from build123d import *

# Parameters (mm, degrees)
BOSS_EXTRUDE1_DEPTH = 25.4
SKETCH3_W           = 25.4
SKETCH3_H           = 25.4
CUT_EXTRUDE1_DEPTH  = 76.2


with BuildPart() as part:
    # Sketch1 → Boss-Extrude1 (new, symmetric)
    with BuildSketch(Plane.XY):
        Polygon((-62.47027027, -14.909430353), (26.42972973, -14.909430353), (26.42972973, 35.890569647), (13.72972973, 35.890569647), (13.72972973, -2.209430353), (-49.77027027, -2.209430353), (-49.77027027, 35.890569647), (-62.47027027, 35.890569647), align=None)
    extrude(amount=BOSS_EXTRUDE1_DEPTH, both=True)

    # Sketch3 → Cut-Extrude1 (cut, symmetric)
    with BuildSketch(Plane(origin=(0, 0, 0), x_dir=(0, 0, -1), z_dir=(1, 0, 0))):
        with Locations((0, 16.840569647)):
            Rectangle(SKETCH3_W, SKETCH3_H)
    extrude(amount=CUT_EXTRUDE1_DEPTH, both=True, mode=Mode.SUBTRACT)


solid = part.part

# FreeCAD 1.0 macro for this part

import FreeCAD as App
import Part
import Sketcher

V = App.Vector
Q = App.Units.Quantity

doc = App.newDocument("Part")
body = doc.addObject("PartDesign::Body", "Body")

# Sketch on XY plane
sketch1 = body.newObject("Sketcher::SketchObject", "Sketch")
sketch1.AttachmentSupport = (doc.getObject("XY_Plane"), [""])
sketch1.MapMode = "FlatFace"
sketch1.addGeometry([
    Part.LineSegment(V(-62, -15, 0), V(26, -15, 0)),  # 0
    Part.LineSegment(V(26, -15, 0), V(26, 36, 0)),  # 1
    Part.LineSegment(V(26, 36, 0), V(14, 36, 0)),  # 2
    Part.LineSegment(V(14, 36, 0), V(14, -2, 0)),  # 3
    Part.LineSegment(V(14, -2, 0), V(-50, -2, 0)),  # 4
    Part.LineSegment(V(-50, -2, 0), V(-50, 36, 0)),  # 5
    Part.LineSegment(V(-50, 36, 0), V(-62, 36, 0)),  # 6
    Part.LineSegment(V(-62, 36, 0), V(-62, -15, 0)),  # 7
], False)
sketch1.addConstraint([
    Sketcher.Constraint("Coincident", 0, 2, 1, 1),
    Sketcher.Constraint("Coincident", 1, 2, 2, 1),
    Sketcher.Constraint("Coincident", 2, 2, 3, 1),
    Sketcher.Constraint("Coincident", 3, 2, 4, 1),
    Sketcher.Constraint("Coincident", 4, 2, 5, 1),
    Sketcher.Constraint("Coincident", 5, 2, 6, 1),
    Sketcher.Constraint("Coincident", 6, 2, 7, 1),
    Sketcher.Constraint("Coincident", 7, 2, 0, 1),
    Sketcher.Constraint("Horizontal", 0),
    Sketcher.Constraint("Vertical", 1),
    Sketcher.Constraint("Horizontal", 2),
    Sketcher.Constraint("Vertical", 3),
    Sketcher.Constraint("Horizontal", 4),
    Sketcher.Constraint("Vertical", 5),
    Sketcher.Constraint("Horizontal", 6),
    Sketcher.Constraint("Vertical", 7),
    Sketcher.Constraint("Horizontal", 2, 2, 5, 2),
    Sketcher.Constraint("Equal", 2, 6),
    Sketcher.Constraint("DistanceY", 1, 1, 1, 2, Q("2 in")),
    Sketcher.Constraint("DistanceX", 0, 1, 0, 2, Q("3.5 in")),
    Sketcher.Constraint("DistanceX", 2, 2, 2, 1, Q("0.5 in")),
    Sketcher.Constraint("DistanceY", 3, 2, 3, 1, Q("1.5 in")),
    Sketcher.Constraint("DistanceX", -1, 1, 0, 2, Q("26.42973 mm")),
    Sketcher.Constraint("DistanceY", 0, 2, -1, 1, Q("14.90943 mm")),
])
pad1 = body.newObject("PartDesign::Pad", "Pad")
pad1.Profile = sketch1
pad1.Length = Q("2 in")
pad1.Midplane = True

# Sketch on YZ plane
sketch2 = body.newObject("Sketcher::SketchObject", "Sketch001")
sketch2.AttachmentSupport = (doc.getObject("YZ_Plane"), [""])
sketch2.MapMode = "FlatFace"
sketch2.addGeometry([
    Part.LineSegment(V(30, 13, 0), V(4, 13, 0)),
    Part.LineSegment(V(4, 13, 0), V(4, -13, 0)),
    Part.LineSegment(V(4, -13, 0), V(30, -13, 0)),
    Part.LineSegment(V(30, -13, 0), V(30, 13, 0)),
], False)
sketch2.addConstraint([
    Sketcher.Constraint("Coincident", 0, 2, 1, 1),
    Sketcher.Constraint("Coincident", 1, 2, 2, 1),
    Sketcher.Constraint("Coincident", 2, 2, 3, 1),
    Sketcher.Constraint("Coincident", 3, 2, 0, 1),
    Sketcher.Constraint("Horizontal", 0),
    Sketcher.Constraint("Vertical", 1),
    Sketcher.Constraint("Horizontal", 2),
    Sketcher.Constraint("Vertical", 3),
    Sketcher.Constraint("Equal", 2, 1),
    Sketcher.Constraint("DistanceX", 0, 2, 0, 1, Q("1 in")),
    Sketcher.Constraint("DistanceY", -1, 1, 0, 2, Q("0.5 in")),
    Sketcher.Constraint("DistanceX", -1, 1, 0, 2, Q("4.14057 mm")),
])
pocket1 = body.newObject("PartDesign::Pocket", "Pocket")
pocket1.Profile = sketch2
pocket1.Length = Q("6 in")
pocket1.Midplane = True

doc.recompute()
